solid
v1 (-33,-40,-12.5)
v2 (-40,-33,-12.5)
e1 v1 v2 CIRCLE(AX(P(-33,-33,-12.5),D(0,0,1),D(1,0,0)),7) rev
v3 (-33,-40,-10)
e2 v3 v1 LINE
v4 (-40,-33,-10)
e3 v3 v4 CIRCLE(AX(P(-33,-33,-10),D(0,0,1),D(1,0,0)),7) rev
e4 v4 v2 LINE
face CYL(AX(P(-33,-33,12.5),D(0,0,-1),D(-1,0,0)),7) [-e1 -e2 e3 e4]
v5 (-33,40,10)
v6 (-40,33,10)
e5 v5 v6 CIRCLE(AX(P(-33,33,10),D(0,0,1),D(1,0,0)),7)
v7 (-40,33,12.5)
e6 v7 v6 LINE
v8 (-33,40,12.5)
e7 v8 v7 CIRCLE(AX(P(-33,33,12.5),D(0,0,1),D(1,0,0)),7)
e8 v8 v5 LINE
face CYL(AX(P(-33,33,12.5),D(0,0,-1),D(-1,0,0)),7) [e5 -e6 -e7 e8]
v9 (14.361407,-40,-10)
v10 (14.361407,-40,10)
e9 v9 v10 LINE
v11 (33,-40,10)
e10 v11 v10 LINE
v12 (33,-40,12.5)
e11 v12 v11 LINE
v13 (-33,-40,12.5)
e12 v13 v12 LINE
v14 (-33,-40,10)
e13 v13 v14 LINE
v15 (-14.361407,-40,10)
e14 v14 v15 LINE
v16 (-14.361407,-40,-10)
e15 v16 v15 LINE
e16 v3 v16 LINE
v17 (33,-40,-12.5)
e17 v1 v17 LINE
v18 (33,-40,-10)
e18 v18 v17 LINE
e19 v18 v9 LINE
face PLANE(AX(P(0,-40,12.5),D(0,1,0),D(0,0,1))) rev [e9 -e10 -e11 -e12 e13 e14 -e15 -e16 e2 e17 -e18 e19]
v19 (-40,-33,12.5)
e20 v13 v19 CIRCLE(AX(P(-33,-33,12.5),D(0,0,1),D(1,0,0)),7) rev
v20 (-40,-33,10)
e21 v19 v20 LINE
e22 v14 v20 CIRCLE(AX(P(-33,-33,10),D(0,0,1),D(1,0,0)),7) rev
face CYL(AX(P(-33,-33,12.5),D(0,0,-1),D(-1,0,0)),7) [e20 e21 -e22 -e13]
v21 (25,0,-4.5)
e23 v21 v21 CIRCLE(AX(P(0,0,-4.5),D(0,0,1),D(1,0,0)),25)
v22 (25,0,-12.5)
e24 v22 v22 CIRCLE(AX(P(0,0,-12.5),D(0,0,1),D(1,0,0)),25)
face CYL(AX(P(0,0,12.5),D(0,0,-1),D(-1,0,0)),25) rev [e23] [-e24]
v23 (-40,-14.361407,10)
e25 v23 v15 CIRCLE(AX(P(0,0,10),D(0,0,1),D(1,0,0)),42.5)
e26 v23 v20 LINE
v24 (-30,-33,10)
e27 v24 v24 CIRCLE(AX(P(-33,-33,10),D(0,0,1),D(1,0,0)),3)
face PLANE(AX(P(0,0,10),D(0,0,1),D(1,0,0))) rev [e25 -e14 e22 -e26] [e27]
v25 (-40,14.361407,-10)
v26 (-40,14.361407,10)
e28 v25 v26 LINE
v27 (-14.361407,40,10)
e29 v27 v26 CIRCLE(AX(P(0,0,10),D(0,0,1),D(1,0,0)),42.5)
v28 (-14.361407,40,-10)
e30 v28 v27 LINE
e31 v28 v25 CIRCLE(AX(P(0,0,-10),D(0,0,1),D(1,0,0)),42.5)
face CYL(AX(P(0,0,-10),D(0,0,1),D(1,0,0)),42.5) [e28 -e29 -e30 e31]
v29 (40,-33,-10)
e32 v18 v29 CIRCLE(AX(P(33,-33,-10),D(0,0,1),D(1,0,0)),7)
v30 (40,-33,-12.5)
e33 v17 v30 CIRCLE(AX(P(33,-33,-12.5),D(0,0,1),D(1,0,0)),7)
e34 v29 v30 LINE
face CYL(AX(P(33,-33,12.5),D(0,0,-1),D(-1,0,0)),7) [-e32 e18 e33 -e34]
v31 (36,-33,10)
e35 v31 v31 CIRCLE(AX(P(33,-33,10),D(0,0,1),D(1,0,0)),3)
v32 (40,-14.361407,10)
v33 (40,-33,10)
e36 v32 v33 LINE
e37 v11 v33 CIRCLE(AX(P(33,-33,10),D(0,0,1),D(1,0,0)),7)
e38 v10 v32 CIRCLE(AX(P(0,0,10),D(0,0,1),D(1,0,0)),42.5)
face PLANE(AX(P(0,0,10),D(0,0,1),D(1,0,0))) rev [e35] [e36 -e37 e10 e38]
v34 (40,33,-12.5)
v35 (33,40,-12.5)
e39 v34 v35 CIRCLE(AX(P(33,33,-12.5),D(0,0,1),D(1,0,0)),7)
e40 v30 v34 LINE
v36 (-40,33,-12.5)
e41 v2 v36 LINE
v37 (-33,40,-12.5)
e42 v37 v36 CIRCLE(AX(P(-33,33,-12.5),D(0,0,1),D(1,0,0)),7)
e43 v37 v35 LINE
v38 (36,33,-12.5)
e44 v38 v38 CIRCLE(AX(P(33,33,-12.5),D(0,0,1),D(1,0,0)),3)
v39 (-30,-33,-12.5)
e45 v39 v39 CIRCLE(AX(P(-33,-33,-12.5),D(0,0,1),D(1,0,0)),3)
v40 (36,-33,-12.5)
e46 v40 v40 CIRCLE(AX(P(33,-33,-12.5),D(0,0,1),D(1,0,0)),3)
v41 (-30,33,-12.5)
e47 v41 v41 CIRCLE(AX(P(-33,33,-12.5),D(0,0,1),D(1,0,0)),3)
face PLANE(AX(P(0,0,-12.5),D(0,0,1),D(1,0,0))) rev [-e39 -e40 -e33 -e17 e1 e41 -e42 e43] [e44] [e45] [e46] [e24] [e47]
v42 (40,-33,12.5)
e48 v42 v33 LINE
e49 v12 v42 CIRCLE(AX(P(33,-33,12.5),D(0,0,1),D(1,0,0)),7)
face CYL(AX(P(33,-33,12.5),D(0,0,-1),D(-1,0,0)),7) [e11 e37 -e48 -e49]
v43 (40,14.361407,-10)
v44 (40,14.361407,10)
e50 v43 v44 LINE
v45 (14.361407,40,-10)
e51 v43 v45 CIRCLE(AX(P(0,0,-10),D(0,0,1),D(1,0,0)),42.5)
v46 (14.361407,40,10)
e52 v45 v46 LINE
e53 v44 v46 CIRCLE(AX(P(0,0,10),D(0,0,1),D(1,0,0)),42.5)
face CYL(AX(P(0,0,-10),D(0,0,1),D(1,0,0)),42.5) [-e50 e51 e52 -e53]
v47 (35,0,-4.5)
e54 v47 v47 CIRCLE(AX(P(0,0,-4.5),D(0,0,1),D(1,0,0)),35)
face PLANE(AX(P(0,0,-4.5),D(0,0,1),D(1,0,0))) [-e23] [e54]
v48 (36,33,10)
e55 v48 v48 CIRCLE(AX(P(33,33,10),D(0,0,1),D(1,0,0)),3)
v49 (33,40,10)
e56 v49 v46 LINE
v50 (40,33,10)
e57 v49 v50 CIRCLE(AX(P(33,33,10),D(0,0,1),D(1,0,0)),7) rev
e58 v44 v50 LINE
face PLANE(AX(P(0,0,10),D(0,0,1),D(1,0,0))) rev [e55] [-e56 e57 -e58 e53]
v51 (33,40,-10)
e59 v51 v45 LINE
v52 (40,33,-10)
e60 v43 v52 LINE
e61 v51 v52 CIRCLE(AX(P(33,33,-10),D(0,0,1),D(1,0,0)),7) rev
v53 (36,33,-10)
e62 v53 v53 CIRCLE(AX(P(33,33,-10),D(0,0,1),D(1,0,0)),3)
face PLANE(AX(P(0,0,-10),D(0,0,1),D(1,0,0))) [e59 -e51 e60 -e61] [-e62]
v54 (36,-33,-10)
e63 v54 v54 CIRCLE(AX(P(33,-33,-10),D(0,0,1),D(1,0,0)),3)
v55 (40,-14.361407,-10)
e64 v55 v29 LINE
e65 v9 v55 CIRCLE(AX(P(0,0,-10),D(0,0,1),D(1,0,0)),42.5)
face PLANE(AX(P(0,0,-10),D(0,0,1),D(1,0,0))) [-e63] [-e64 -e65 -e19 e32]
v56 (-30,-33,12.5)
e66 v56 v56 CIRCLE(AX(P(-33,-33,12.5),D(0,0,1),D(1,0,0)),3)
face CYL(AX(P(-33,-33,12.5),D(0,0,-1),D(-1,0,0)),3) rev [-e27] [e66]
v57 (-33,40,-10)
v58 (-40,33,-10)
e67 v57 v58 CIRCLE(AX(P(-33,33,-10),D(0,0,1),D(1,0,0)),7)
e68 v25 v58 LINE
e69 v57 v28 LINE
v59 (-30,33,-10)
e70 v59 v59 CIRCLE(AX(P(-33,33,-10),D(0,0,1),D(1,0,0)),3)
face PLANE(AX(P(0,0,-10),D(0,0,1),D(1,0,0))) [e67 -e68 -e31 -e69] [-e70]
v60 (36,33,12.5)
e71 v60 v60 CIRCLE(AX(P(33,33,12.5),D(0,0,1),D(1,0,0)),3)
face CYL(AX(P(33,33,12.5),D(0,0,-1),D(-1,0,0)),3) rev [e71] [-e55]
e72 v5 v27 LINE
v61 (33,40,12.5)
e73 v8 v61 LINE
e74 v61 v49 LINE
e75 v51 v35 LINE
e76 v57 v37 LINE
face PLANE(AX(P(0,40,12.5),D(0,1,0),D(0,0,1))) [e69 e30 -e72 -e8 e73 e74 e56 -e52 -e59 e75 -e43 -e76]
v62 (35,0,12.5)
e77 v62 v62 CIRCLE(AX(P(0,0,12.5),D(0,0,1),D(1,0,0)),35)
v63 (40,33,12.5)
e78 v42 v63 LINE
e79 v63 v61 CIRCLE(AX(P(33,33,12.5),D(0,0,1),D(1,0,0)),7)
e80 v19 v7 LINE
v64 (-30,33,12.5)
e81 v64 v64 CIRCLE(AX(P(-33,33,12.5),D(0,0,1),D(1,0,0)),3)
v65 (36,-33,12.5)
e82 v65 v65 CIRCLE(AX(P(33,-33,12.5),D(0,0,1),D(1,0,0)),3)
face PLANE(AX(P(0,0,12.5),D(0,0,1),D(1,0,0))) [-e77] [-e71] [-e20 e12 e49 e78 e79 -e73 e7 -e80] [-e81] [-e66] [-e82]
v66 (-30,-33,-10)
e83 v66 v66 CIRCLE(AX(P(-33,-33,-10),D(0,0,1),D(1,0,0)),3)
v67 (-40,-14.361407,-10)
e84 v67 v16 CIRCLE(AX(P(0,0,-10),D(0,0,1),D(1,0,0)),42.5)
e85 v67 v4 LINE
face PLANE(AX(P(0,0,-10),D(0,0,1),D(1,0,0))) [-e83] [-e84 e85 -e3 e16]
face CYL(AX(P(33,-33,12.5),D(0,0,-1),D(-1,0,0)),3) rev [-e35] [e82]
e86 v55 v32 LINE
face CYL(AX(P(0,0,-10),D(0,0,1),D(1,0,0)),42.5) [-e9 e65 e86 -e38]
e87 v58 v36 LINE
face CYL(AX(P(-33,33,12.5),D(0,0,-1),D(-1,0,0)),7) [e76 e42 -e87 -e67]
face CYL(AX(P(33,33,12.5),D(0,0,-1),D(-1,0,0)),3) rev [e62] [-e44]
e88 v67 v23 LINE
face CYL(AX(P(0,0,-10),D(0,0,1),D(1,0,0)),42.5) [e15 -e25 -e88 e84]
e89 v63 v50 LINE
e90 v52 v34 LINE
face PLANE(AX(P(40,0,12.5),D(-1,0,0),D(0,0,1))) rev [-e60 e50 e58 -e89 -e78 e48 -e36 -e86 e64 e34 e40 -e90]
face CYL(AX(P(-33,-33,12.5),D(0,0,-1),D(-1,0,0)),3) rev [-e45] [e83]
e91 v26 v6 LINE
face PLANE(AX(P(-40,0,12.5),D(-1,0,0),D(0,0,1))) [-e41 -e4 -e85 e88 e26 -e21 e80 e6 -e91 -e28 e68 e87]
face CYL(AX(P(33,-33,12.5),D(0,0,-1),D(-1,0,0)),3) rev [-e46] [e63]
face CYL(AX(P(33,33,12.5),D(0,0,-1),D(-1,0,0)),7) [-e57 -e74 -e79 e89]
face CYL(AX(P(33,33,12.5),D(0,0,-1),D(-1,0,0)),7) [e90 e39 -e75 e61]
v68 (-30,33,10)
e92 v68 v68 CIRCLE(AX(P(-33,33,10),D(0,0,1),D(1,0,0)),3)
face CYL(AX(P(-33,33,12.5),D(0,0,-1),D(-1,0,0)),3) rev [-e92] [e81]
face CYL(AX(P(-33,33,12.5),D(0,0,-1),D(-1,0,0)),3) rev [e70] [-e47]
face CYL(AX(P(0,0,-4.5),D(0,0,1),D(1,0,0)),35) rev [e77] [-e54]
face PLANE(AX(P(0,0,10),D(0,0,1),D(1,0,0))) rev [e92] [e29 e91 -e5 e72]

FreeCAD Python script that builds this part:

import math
import FreeCAD as App
import Part
import Sketcher

doc = App.newDocument("Part")
body = doc.addObject("PartDesign::Body", "Body")

# Sketch on XY plane
sketch1 = body.newObject("Sketcher::SketchObject", "Sketch")
sketch1.AttachmentSupport = (doc.getObject("XY_Plane"), [""])
sketch1.MapMode = "FlatFace"
sketch1.addGeometry([
    Part.LineSegment(App.Vector(-33, -40, 0), App.Vector(33, -40, 0)),  # 0
    Part.ArcOfCircle(Part.Circle(App.Vector(33, -33, 0), App.Vector(0, 0, 1), 7), math.radians(-90), math.radians(0)),  # 1
    Part.LineSegment(App.Vector(40, -33, 0), App.Vector(40, 33, 0)),  # 2
    Part.ArcOfCircle(Part.Circle(App.Vector(33, 33, 0), App.Vector(0, 0, 1), 7), math.radians(0), math.radians(90)),  # 3
    Part.LineSegment(App.Vector(33, 40, 0), App.Vector(-33, 40, 0)),  # 4
    Part.ArcOfCircle(Part.Circle(App.Vector(-33, 33, 0), App.Vector(0, 0, 1), 7), math.radians(90), math.radians(180)),  # 5
    Part.LineSegment(App.Vector(-40, 33, 0), App.Vector(-40, -33, 0)),  # 6
    Part.ArcOfCircle(Part.Circle(App.Vector(-33, -33, 0), App.Vector(0, 0, 1), 7), math.radians(-180), math.radians(-90)),  # 7
    Part.Circle(App.Vector(-33, -33, 0), App.Vector(0, 0, 1), 3),  # 8
    Part.Circle(App.Vector(33, -33, 0), App.Vector(0, 0, 1), 3),  # 9
    Part.Circle(App.Vector(-33, 33, 0), App.Vector(0, 0, 1), 3),  # 10
    Part.Circle(App.Vector(0, 0, 0), App.Vector(0, 0, 1), 25),  # 11
    Part.Circle(App.Vector(33, 33, 0), App.Vector(0, 0, 1), 3),  # 12
], False)
sketch1.addConstraint([
    Sketcher.Constraint("Tangent", 0, 2, 1, 1),
    Sketcher.Constraint("Tangent", 1, 2, 2, 1),
    Sketcher.Constraint("Tangent", 2, 2, 3, 1),
    Sketcher.Constraint("Tangent", 3, 2, 4, 1),
    Sketcher.Constraint("Tangent", 4, 2, 5, 1),
    Sketcher.Constraint("Tangent", 5, 2, 6, 1),
    Sketcher.Constraint("Tangent", 6, 2, 7, 1),
    Sketcher.Constraint("Tangent", 7, 2, 0, 1),
    Sketcher.Constraint("Horizontal", 0),
    Sketcher.Constraint("Vertical", 2),
    Sketcher.Constraint("Horizontal", 4),
    Sketcher.Constraint("Vertical", 6),
    Sketcher.Constraint("Coincident", 11, 3, -1, 1),
    Sketcher.Constraint("Coincident", 8, 3, 7, 3),
    Sketcher.Constraint("Coincident", 9, 3, 1, 3),
    Sketcher.Constraint("Coincident", 10, 3, 5, 3),
    Sketcher.Constraint("Coincident", 12, 3, 3, 3),
    Sketcher.Constraint("Equal", 1, 3),
    Sketcher.Constraint("Equal", 3, 5),
    Sketcher.Constraint("Equal", 5, 7),
    Sketcher.Constraint("Equal", 8, 9),
    Sketcher.Constraint("Equal", 9, 10),
    Sketcher.Constraint("Equal", 10, 12),
    Sketcher.Constraint("Symmetric", 1, 3, 5, 3, -1, 1),
    Sketcher.Constraint("Equal", 4, 2),
    Sketcher.Constraint("Diameter", 8, 6.0),
    Sketcher.Constraint("Diameter", 11, 50.0),
    Sketcher.Constraint("Radius", 1, 7.0),
    Sketcher.Constraint("DistanceX", 0, 1, 0, 2, 66.0),
])
pad1 = body.newObject("PartDesign::Pad", "Pad")
pad1.Profile = sketch1
pad1.Length = 25
pad1.Midplane = True

# Sketch on XY plane
sketch2 = body.newObject("Sketcher::SketchObject", "Sketch001")
sketch2.AttachmentSupport = (doc.getObject("XY_Plane"), [""])
sketch2.MapMode = "FlatFace"
sketch2.addGeometry([
    Part.LineSegment(App.Vector(-40, 33, 0), App.Vector(-40, 14, 0)),  # 0
    Part.ArcOfCircle(Part.Circle(App.Vector(0, 0, 0), App.Vector(0, 0, 1), 43), math.radians(110), math.radians(160)),  # 1
    Part.LineSegment(App.Vector(-14, 40, 0), App.Vector(-33, 40, 0)),  # 2
    Part.ArcOfCircle(Part.Circle(App.Vector(-33, 33, 0), App.Vector(0, 0, 1), 7), math.radians(90), math.radians(180)),  # 3
    Part.LineSegment(App.Vector(33, 40, 0), App.Vector(14, 40, 0)),  # 4
    Part.ArcOfCircle(Part.Circle(App.Vector(0, 0, 0), App.Vector(0, 0, 1), 43), math.radians(20), math.radians(70)),  # 5
    Part.LineSegment(App.Vector(40, 14, 0), App.Vector(40, 33, 0)),  # 6
    Part.ArcOfCircle(Part.Circle(App.Vector(33, 33, 0), App.Vector(0, 0, 1), 7), math.radians(0), math.radians(90)),  # 7
    Part.ArcOfCircle(Part.Circle(App.Vector(0, 0, 0), App.Vector(0, 0, 1), 43), math.radians(-70), math.radians(-20)),  # 8
    Part.LineSegment(App.Vector(14, -40, 0), App.Vector(33, -40, 0)),  # 9
    Part.ArcOfCircle(Part.Circle(App.Vector(33, -33, 0), App.Vector(0, 0, 1), 7), math.radians(-90), math.radians(0)),  # 10
    Part.LineSegment(App.Vector(40, -33, 0), App.Vector(40, -14, 0)),  # 11
    Part.ArcOfCircle(Part.Circle(App.Vector(0, 0, 0), App.Vector(0, 0, 1), 43), math.radians(-160), math.radians(-110)),  # 12
    Part.LineSegment(App.Vector(-40, -14, 0), App.Vector(-40, -33, 0)),  # 13
    Part.ArcOfCircle(Part.Circle(App.Vector(-33, -33, 0), App.Vector(0, 0, 1), 7), math.radians(-180), math.radians(-90)),  # 14
    Part.LineSegment(App.Vector(-33, -40, 0), App.Vector(-14, -40, 0)),  # 15
], False)
sketch2.addConstraint([
    Sketcher.Constraint("Coincident", 0, 2, 1, 2),
    Sketcher.Constraint("Coincident", 1, 1, 2, 1),
    Sketcher.Constraint("Tangent", 2, 2, 3, 1),
    Sketcher.Constraint("Tangent", 3, 2, 0, 1),
    Sketcher.Constraint("Coincident", 4, 2, 5, 2),
    Sketcher.Constraint("Coincident", 5, 1, 6, 1),
    Sketcher.Constraint("Tangent", 6, 2, 7, 1),
    Sketcher.Constraint("Tangent", 7, 2, 4, 1),
    Sketcher.Constraint("Coincident", 8, 1, 9, 1),
    Sketcher.Constraint("Tangent", 9, 2, 10, 1),
    Sketcher.Constraint("Tangent", 10, 2, 11, 1),
    Sketcher.Constraint("Coincident", 11, 2, 8, 2),
    Sketcher.Constraint("Coincident", 12, 1, 13, 1),
    Sketcher.Constraint("Tangent", 13, 2, 14, 1),
    Sketcher.Constraint("Tangent", 14, 2, 15, 1),
    Sketcher.Constraint("Coincident", 15, 2, 12, 2),
    Sketcher.Constraint("Vertical", 0),
    Sketcher.Constraint("Horizontal", 2),
    Sketcher.Constraint("Horizontal", 4),
    Sketcher.Constraint("Vertical", 6),
    Sketcher.Constraint("Horizontal", 9),
    Sketcher.Constraint("Vertical", 11),
    Sketcher.Constraint("Vertical", 13),
    Sketcher.Constraint("Horizontal", 15),
    Sketcher.Constraint("Coincident", 1, 3, -1, 1),
    Sketcher.Constraint("Coincident", 5, 3, -1, 1),
    Sketcher.Constraint("Coincident", 8, 3, -1, 1),
    Sketcher.Constraint("Coincident", 12, 3, -1, 1),
    Sketcher.Constraint("Equal", 1, 5),
    Sketcher.Constraint("Equal", 3, 7),
    Sketcher.Constraint("Equal", 5, 8),
    Sketcher.Constraint("Equal", 7, 10),
    Sketcher.Constraint("Equal", 8, 12),
    Sketcher.Constraint("Equal", 10, 14),
    Sketcher.Constraint("Symmetric", 3, 3, 10, 3, -1, 1),
    Sketcher.Constraint("Symmetric", 7, 3, 14, 3, -1, 1),
    Sketcher.Constraint("Symmetric", 3, 3, 7, 3, -2),
    Sketcher.Constraint("Equal", 15, 0),
    Sketcher.Constraint("Radius", 3, 7.0),
    Sketcher.Constraint("Radius", 1, 42.5),
    Sketcher.Constraint("DistanceX", 3, 3, -1, 1, 33.0),
])
pocket1 = body.newObject("PartDesign::Pocket", "Pocket")
pocket1.Profile = sketch2
pocket1.Length = 20
pocket1.Midplane = True

# Sketch on XY plane
sketch3 = body.newObject("Sketcher::SketchObject", "Sketch002")
sketch3.AttachmentSupport = (doc.getObject("XY_Plane"), [""])
sketch3.MapMode = "FlatFace"
sketch3.AttachmentOffset = App.Placement(App.Vector(0, 0, -4.5), App.Rotation())
sketch3.addGeometry([
    Part.Circle(App.Vector(0, 0, 0), App.Vector(0, 0, 1), 35),
    Part.Circle(App.Vector(0, 0, 0), App.Vector(0, 0, 1), 25),
], False)
sketch3.addConstraint([
    Sketcher.Constraint("Coincident", 0, 3, -1, 1),
    Sketcher.Constraint("Coincident", 1, 3, -1, 1),
    Sketcher.Constraint("Diameter", 0, 70.0),
    Sketcher.Constraint("Diameter", 1, 50.0),
])
pocket2 = body.newObject("PartDesign::Pocket", "Pocket001")
pocket2.Profile = sketch3
pocket2.Length = 17
pocket2.Reversed = True

doc.recompute()
